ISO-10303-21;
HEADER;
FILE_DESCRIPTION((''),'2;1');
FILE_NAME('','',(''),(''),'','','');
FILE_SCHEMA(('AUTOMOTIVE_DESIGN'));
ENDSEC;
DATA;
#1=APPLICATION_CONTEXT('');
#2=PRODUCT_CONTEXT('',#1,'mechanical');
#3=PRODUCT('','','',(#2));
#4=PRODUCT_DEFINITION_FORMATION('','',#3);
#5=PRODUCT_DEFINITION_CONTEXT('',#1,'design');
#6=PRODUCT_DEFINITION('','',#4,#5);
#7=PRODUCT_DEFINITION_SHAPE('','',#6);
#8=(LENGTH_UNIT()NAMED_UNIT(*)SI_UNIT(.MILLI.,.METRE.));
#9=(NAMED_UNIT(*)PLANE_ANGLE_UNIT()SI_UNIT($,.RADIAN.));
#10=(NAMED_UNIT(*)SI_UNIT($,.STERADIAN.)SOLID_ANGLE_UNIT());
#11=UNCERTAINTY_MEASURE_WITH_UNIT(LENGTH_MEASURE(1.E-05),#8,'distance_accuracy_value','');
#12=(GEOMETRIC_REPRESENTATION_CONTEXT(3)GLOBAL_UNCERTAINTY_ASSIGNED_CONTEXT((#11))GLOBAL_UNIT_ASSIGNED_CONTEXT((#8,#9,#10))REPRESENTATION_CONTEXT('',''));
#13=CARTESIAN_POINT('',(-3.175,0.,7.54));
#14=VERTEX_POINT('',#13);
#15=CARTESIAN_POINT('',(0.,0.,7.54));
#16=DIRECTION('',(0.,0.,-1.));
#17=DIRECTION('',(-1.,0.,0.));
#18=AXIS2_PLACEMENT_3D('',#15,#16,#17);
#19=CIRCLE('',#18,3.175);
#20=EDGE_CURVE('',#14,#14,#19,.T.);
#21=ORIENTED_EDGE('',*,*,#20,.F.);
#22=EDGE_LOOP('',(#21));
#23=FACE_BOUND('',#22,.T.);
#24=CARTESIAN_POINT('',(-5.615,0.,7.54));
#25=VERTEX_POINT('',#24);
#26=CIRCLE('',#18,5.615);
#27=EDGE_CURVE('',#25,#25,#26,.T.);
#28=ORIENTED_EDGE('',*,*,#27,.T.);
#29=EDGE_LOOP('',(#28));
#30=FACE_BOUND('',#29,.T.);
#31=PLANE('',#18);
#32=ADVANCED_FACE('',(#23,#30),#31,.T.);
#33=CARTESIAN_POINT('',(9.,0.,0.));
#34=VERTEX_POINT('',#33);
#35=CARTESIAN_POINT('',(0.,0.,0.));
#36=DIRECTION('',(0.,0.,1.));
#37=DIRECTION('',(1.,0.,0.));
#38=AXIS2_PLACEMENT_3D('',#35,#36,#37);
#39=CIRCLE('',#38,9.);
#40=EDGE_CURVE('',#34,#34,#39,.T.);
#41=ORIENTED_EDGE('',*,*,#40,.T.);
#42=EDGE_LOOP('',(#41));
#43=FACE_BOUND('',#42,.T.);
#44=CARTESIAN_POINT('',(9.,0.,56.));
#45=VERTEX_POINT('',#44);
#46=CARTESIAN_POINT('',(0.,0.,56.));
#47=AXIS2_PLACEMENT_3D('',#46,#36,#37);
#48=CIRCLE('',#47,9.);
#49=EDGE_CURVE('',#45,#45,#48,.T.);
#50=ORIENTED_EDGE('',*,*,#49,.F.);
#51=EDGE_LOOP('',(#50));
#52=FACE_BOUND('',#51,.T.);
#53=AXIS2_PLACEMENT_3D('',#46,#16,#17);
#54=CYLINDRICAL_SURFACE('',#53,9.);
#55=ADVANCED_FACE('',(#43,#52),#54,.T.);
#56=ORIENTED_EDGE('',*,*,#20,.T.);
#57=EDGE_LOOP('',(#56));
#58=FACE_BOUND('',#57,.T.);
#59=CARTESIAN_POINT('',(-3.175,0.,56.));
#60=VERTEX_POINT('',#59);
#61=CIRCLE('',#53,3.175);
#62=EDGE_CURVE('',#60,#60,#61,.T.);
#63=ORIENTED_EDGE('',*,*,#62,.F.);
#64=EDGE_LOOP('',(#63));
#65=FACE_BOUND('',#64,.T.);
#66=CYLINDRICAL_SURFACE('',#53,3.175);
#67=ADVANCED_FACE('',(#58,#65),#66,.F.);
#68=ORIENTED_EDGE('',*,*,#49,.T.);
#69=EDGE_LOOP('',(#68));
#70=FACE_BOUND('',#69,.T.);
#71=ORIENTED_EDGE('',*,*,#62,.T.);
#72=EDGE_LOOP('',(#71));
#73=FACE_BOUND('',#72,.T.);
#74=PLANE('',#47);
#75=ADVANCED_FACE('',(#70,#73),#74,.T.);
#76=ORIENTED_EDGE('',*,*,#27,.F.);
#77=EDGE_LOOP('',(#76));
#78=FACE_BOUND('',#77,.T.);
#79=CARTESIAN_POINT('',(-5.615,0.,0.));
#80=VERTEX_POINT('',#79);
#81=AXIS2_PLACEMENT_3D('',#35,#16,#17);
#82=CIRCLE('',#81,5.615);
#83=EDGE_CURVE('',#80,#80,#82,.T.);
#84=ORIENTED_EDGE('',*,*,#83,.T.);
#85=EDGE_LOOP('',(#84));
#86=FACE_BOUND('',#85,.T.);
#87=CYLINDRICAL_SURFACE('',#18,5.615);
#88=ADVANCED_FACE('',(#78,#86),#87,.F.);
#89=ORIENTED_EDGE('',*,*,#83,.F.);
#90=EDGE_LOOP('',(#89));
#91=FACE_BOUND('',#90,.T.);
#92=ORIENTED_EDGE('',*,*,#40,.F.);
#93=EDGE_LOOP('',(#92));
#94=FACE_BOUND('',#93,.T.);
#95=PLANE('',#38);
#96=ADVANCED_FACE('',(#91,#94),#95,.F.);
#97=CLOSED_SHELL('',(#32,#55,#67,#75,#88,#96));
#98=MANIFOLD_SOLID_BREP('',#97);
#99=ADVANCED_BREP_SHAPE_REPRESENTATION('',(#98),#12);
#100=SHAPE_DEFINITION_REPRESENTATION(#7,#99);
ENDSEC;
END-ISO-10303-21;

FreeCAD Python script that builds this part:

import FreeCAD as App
import Part
import Sketcher
from FreeCAD import Vector
Q = App.Units.Quantity

doc = App.newDocument("Part")
params = doc.addObject("Spreadsheet::Sheet", "Params")
for row, (alias, value) in enumerate([
    ("sketch1_diameter", "18 mm"),
    ("pad1_length", "56 mm"),
    ("sketch2_diameter", "11.23 mm"),
    ("pocket1_length", "7.54 mm"),
    ("sketch3_diameter", "6.35 mm"),
], start=1):
    params.set(f"A{row}", alias)
    params.set(f"B{row}", "=" + value)
    params.setAlias(f"B{row}", alias)

body = doc.addObject("PartDesign::Body", "Body")

# Sketch on XY plane
sketch1 = doc.addObject("Sketcher::SketchObject", "Sketch")
body.addObject(sketch1)
sketch1.AttachmentSupport = (doc.XY_Plane, [""])
sketch1.MapMode = "FlatFace"
sketch1.addGeometry(Part.Circle(Vector(0, 0, 0), Vector(0, 0, 1), 9), False)
sketch1.addConstraint(Sketcher.Constraint("Coincident", 0, 3, -1, 1))
sketch1.addConstraint(Sketcher.Constraint("Diameter", 0, Q("18 mm")))
sketch1.setExpression("Constraints[1]", "Params.sketch1_diameter")
pad1 = doc.addObject("PartDesign::Pad", "Pad")
body.addObject(pad1)
pad1.Profile = sketch1
pad1.setExpression("Length", "Params.pad1_length")

# Sketch on XY plane
sketch2 = doc.addObject("Sketcher::SketchObject", "Sketch001")
body.addObject(sketch2)
sketch2.AttachmentSupport = (doc.XY_Plane, [""])
sketch2.MapMode = "FlatFace"
sketch2.addGeometry(Part.Circle(Vector(0, 0, 0), Vector(0, 0, 1), 6), False)
sketch2.addConstraint(Sketcher.Constraint("Coincident", 0, 3, -1, 1))
sketch2.addConstraint(Sketcher.Constraint("Diameter", 0, Q("11.23 mm")))
sketch2.setExpression("Constraints[1]", "Params.sketch2_diameter")
pocket1 = doc.addObject("PartDesign::Pocket", "Pocket")
body.addObject(pocket1)
pocket1.Profile = sketch2
pocket1.setExpression("Length", "Params.pocket1_length")
pocket1.Reversed = True

# Sketch on XY plane
sketch3 = doc.addObject("Sketcher::SketchObject", "Sketch002")
body.addObject(sketch3)
sketch3.AttachmentSupport = (doc.XY_Plane, [""])
sketch3.MapMode = "FlatFace"
sketch3.AttachmentOffset = App.Placement(Vector(0, 0, 7.54), App.Rotation())
sketch3.addGeometry(Part.Circle(Vector(0, 0, 0), Vector(0, 0, 1), 3.2), False)
sketch3.addConstraint(Sketcher.Constraint("Coincident", 0, 3, -1, 1))
sketch3.addConstraint(Sketcher.Constraint("Diameter", 0, Q("6.35 mm")))
sketch3.setExpression("Constraints[1]", "Params.sketch3_diameter")
pocket2 = doc.addObject("PartDesign::Pocket", "Pocket001")
body.addObject(pocket2)
pocket2.Profile = sketch3
pocket2.Type = "ThroughAll"
pocket2.Reversed = True

doc.recompute()
